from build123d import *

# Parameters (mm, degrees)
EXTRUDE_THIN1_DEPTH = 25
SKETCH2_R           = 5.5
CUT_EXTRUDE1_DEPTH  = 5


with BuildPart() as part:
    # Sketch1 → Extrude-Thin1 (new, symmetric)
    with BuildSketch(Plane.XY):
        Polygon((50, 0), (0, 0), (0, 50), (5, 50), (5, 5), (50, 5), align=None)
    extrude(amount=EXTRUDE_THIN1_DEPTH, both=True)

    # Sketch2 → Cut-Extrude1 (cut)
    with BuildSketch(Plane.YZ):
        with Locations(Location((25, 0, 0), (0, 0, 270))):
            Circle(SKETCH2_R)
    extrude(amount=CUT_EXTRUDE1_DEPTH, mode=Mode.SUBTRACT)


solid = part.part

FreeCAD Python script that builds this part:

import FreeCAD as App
import Part
import Sketcher
Q = App.Units.Quantity


def add_polygon(sketch, points):
    """Adds a closed chain of lines whose ends are joined by coincident constraints."""
    first, n = sketch.GeometryCount, len(points)
    for a, b in zip(points, points[1:] + points[:1]):
        sketch.addGeometry(Part.LineSegment(App.Vector(*a, 0), App.Vector(*b, 0)), False)
    for i in range(n):
        sketch.addConstraint(Sketcher.Constraint("Coincident", first + i, 2, first + (i + 1) % n, 1))

doc = App.newDocument("Part")
body = doc.addObject("PartDesign::Body", "Body")

sketch1 = body.newObject("Sketcher::SketchObject", "Sketch")
sketch1.AttachmentSupport = (doc.getObject("XY_Plane"), [""])
sketch1.MapMode = "FlatFace"
add_polygon(sketch1, [(0, 0), (50, 0), (50, 5), (5, 5), (5, 50), (0, 50)])
sketch1.addConstraint(Sketcher.Constraint("Horizontal", 0))
sketch1.addConstraint(Sketcher.Constraint("Vertical", 1))
sketch1.addConstraint(Sketcher.Constraint("Horizontal", 2))
sketch1.addConstraint(Sketcher.Constraint("Vertical", 3))
sketch1.addConstraint(Sketcher.Constraint("Horizontal", 4))
sketch1.addConstraint(Sketcher.Constraint("Vertical", 5))
sketch1.addConstraint(Sketcher.Constraint("Coincident", 5, 2, -1, 1))
sketch1.addConstraint(Sketcher.Constraint("Equal", 4, 1))
sketch1.addConstraint(Sketcher.Constraint("Equal", 2, 3))
sketch1.addConstraint(Sketcher.Constraint("DistanceX", 0, 1, 0, 2, Q("50 mm")))
sketch1.addConstraint(Sketcher.Constraint("DistanceX", 2, 2, 2, 1, Q("45 mm")))
pad1 = body.newObject("PartDesign::Pad", "Pad")
pad1.Profile = sketch1
pad1.Length = 50
pad1.Midplane = True

sketch2 = body.newObject("Sketcher::SketchObject", "Sketch001")
sketch2.AttachmentSupport = (doc.getObject("YZ_Plane"), [""])
sketch2.MapMode = "FlatFace"
sketch2.addGeometry(Part.Circle(App.Vector(25, 0, 0), App.Vector(0, 0, 1), 5.5), False)
sketch2.addConstraint(Sketcher.Constraint("PointOnObject", 0, 3, -1))
sketch2.addConstraint(Sketcher.Constraint("Diameter", 0, Q("11 mm")))
sketch2.addConstraint(Sketcher.Constraint("DistanceX", -1, 1, 0, 3, Q("25 mm")))
pocket1 = body.newObject("PartDesign::Pocket", "Pocket")
pocket1.Profile = sketch2
pocket1.Length = 5
pocket1.Reversed = True

doc.recompute()
